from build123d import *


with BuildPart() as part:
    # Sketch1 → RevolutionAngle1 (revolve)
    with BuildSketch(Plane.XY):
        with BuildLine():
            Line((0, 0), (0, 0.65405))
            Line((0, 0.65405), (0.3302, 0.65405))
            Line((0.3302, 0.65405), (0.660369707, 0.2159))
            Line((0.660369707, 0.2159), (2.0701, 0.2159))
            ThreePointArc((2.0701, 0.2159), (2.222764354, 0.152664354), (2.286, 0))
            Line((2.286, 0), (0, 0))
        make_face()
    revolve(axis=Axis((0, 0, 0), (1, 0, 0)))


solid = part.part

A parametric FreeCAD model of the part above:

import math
import FreeCAD as App
import Part
import Sketcher

V = App.Vector
Q = App.Units.Quantity

doc = App.newDocument("Part")
body = doc.addObject("PartDesign::Body", "Body")

# Sketch on XY plane
sketch1 = doc.addObject("Sketcher::SketchObject", "Sketch")
body.addObject(sketch1)
sketch1.AttachmentSupport = (doc.XY_Plane, [""])
sketch1.MapMode = "FlatFace"
sketch1.addGeometry(Part.LineSegment(V(0, 0.65, 0), V(0, 0, 0)), False)
sketch1.addGeometry(Part.LineSegment(V(0, 0, 0), V(2.29, 0, 0)), False)
sketch1.addGeometry(Part.ArcOfCircle(Part.Circle(V(2.07, 0, 0), V(0, 0, 1), 0.22), math.radians(0), math.radians(90)), False)
sketch1.addGeometry(Part.LineSegment(V(2.07, 0.22, 0), V(0.66, 0.22, 0)), False)
sketch1.addGeometry(Part.LineSegment(V(0.66, 0.22, 0), V(0.33, 0.65, 0)), False)
sketch1.addGeometry(Part.LineSegment(V(0.33, 0.65, 0), V(0, 0.65, 0)), False)
sketch1.addConstraint(Sketcher.Constraint("Coincident", 0, 2, 1, 1))
sketch1.addConstraint(Sketcher.Constraint("Coincident", 1, 2, 2, 1))
sketch1.addConstraint(Sketcher.Constraint("Tangent", 2, 2, 3, 1))
sketch1.addConstraint(Sketcher.Constraint("Coincident", 3, 2, 4, 1))
sketch1.addConstraint(Sketcher.Constraint("Coincident", 4, 2, 5, 1))
sketch1.addConstraint(Sketcher.Constraint("Coincident", 5, 2, 0, 1))
sketch1.addConstraint(Sketcher.Constraint("Vertical", 0))
sketch1.addConstraint(Sketcher.Constraint("Horizontal", 1))
sketch1.addConstraint(Sketcher.Constraint("Horizontal", 3))
sketch1.addConstraint(Sketcher.Constraint("Horizontal", 5))
sketch1.addConstraint(Sketcher.Constraint("Coincident", 0, 2, -1, 1))
sketch1.addConstraint(Sketcher.Constraint("PointOnObject", 2, 3, -1))
sketch1.addConstraint(Sketcher.Constraint("Angle", 4, Q("127 deg")))
sketch1.addConstraint(Sketcher.Constraint("DistanceX", 1, 1, 1, 2, Q("0.09 in")))
sketch1.addConstraint(Sketcher.Constraint("Radius", 2, Q("0.0085 in")))
sketch1.addConstraint(Sketcher.Constraint("DistanceX", 5, 2, 5, 1, Q("0.013 in")))
sketch1.addConstraint(Sketcher.Constraint("DistanceX", 3, 2, 3, 1, 1.40973))
revolution = doc.addObject("PartDesign::Revolution", "Revolution")
body.addObject(revolution)
revolution.Profile = sketch1
revolution.ReferenceAxis = (sketch1, ["H_Axis"])
revolution.Angle = 360

doc.recompute()
